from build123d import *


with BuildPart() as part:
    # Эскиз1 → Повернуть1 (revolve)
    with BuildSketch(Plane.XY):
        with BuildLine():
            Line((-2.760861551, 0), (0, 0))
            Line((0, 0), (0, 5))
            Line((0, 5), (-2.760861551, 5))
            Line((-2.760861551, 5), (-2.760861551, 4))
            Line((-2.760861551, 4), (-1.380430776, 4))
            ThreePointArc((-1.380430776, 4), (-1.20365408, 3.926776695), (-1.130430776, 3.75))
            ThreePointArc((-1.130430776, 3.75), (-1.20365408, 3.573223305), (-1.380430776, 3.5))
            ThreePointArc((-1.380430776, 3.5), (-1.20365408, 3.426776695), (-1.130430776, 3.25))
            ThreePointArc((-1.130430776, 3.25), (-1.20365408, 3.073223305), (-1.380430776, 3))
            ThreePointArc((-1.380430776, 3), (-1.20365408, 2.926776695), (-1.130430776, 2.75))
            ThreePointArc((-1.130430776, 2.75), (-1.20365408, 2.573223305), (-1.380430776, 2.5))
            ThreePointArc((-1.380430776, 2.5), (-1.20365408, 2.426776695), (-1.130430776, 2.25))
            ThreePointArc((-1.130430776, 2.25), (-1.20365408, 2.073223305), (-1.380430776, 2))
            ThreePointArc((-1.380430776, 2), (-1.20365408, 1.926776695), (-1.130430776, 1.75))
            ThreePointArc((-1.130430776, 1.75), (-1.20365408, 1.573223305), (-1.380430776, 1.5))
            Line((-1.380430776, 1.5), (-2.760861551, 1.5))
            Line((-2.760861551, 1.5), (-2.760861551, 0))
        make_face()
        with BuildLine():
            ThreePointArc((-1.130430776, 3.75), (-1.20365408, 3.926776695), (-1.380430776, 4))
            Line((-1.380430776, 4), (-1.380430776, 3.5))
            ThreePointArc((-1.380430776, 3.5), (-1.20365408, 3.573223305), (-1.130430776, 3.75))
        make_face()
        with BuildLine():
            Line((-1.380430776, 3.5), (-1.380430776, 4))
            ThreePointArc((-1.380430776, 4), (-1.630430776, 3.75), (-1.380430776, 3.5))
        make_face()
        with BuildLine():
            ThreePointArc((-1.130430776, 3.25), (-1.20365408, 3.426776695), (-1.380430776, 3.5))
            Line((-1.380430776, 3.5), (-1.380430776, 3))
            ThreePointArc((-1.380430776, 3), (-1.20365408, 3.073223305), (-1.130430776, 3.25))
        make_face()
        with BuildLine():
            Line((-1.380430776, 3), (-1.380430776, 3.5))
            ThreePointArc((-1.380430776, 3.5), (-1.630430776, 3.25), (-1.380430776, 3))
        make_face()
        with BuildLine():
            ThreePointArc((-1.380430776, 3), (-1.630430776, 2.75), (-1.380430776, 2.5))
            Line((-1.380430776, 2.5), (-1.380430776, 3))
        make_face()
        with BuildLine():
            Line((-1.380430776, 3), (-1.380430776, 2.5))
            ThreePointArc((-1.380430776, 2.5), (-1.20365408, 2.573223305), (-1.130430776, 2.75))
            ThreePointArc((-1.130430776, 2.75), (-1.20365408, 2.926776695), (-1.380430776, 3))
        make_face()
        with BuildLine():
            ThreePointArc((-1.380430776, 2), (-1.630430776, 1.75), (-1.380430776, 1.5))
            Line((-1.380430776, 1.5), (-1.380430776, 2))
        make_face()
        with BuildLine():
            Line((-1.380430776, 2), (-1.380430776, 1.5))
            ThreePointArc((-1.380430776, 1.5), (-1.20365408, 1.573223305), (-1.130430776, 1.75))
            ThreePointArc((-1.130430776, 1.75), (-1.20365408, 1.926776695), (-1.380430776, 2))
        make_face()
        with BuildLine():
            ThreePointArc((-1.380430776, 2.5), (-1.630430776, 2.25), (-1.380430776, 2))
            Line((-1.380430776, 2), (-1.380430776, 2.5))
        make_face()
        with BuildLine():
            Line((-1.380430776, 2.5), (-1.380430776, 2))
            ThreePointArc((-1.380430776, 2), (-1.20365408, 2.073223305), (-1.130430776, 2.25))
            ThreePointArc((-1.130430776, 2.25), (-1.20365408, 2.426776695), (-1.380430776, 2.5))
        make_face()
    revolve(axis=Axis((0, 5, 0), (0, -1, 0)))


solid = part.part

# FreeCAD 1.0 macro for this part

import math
import FreeCAD as App
import Part
import Sketcher
from FreeCAD import Vector
Q = App.Units.Quantity

doc = App.newDocument("Part")
params = doc.addObject("Spreadsheet::Sheet", "Params")
for row, (alias, value) in enumerate([
    ("sketch1_height", "1 mm"),
    ("sketch1_height2", "5 mm"),
    ("sketch1_radius", "0.25 mm"),
    ("revolution_angle", "360 deg"),
], start=1):
    params.set(f"A{row}", alias)
    params.set(f"B{row}", "=" + value)
    params.setAlias(f"B{row}", alias)

body = doc.addObject("PartDesign::Body", "Body")

sketch1 = body.newObject("Sketcher::SketchObject", "Sketch")
sketch1.AttachmentSupport = (doc.getObject("XY_Plane"), [""])
sketch1.MapMode = "FlatFace"
sketch1.addGeometry(Part.LineSegment(Vector(0, 5, 0), Vector(-2.760862, 5, 0)), False)
sketch1.addGeometry(Part.LineSegment(Vector(-2.760862, 5, 0), Vector(-2.760862, 4, 0)), False)
sketch1.addGeometry(Part.LineSegment(Vector(-2.760862, 4, 0), Vector(-1.380431, 4, 0)), False)
sketch1.addGeometry(Part.ArcOfCircle(Part.Circle(Vector(-1.380431, 3.75, 0), Vector(0, 0, 1), 0.25), math.radians(90), math.radians(270)), False)
sketch1.addGeometry(Part.ArcOfCircle(Part.Circle(Vector(-1.380431, 3.25, 0), Vector(0, 0, 1), 0.25), math.radians(90), math.radians(270)), False)
sketch1.addGeometry(Part.ArcOfCircle(Part.Circle(Vector(-1.380431, 2.75, 0), Vector(0, 0, 1), 0.25), math.radians(90), math.radians(270)), False)
sketch1.addGeometry(Part.ArcOfCircle(Part.Circle(Vector(-1.380431, 2.25, 0), Vector(0, 0, 1), 0.25), math.radians(90), math.radians(270)), False)
sketch1.addGeometry(Part.ArcOfCircle(Part.Circle(Vector(-1.380431, 1.75, 0), Vector(0, 0, 1), 0.25), math.radians(90), math.radians(270)), False)
sketch1.addGeometry(Part.LineSegment(Vector(-1.380431, 1.5, 0), Vector(-2.760862, 1.5, 0)), False)
sketch1.addGeometry(Part.LineSegment(Vector(-2.760862, 1.5, 0), Vector(-2.760862, 0, 0)), False)
sketch1.addGeometry(Part.LineSegment(Vector(-2.760862, 0, 0), Vector(0, 0, 0)), False)
sketch1.addGeometry(Part.LineSegment(Vector(0, 0, 0), Vector(0, 5, 0)), False)
sketch1.addConstraint(Sketcher.Constraint("Coincident", 0, 2, 1, 1))
sketch1.addConstraint(Sketcher.Constraint("Coincident", 1, 2, 2, 1))
sketch1.addConstraint(Sketcher.Constraint("Tangent", 2, 2, 3, 1))
sketch1.addConstraint(Sketcher.Constraint("Tangent", 3, 2, 4, 1))
sketch1.addConstraint(Sketcher.Constraint("Tangent", 4, 2, 5, 1))
sketch1.addConstraint(Sketcher.Constraint("Tangent", 5, 2, 6, 1))
sketch1.addConstraint(Sketcher.Constraint("Tangent", 6, 2, 7, 1))
sketch1.addConstraint(Sketcher.Constraint("Tangent", 7, 2, 8, 1))
sketch1.addConstraint(Sketcher.Constraint("Coincident", 8, 2, 9, 1))
sketch1.addConstraint(Sketcher.Constraint("Coincident", 9, 2, 10, 1))
sketch1.addConstraint(Sketcher.Constraint("Coincident", 10, 2, 11, 1))
sketch1.addConstraint(Sketcher.Constraint("Coincident", 11, 2, 0, 1))
sketch1.addConstraint(Sketcher.Constraint("Horizontal", 0))
sketch1.addConstraint(Sketcher.Constraint("Vertical", 1))
sketch1.addConstraint(Sketcher.Constraint("Horizontal", 2))
sketch1.addConstraint(Sketcher.Constraint("Horizontal", 8))
sketch1.addConstraint(Sketcher.Constraint("Vertical", 9))
sketch1.addConstraint(Sketcher.Constraint("Horizontal", 10))
sketch1.addConstraint(Sketcher.Constraint("Vertical", 11))
sketch1.addConstraint(Sketcher.Constraint("Coincident", 10, 2, -1, 1))
sketch1.addConstraint(Sketcher.Constraint("Equal", 3, 4))
sketch1.addConstraint(Sketcher.Constraint("Equal", 4, 5))
sketch1.addConstraint(Sketcher.Constraint("Equal", 5, 6))
sketch1.addConstraint(Sketcher.Constraint("Equal", 6, 7))
sketch1.addConstraint(Sketcher.Constraint("Vertical", 3, 3, 4, 3))
sketch1.addConstraint(Sketcher.Constraint("Vertical", 4, 3, 5, 3))
sketch1.addConstraint(Sketcher.Constraint("Vertical", 5, 3, 6, 3))
sketch1.addConstraint(Sketcher.Constraint("Vertical", 6, 3, 7, 3))
sketch1.addConstraint(Sketcher.Constraint("Vertical", 1, 2, 8, 2))
sketch1.addConstraint(Sketcher.Constraint("DistanceY", 1, 2, 1, 1, Q("1 mm")))
sketch1.addConstraint(Sketcher.Constraint("DistanceY", 11, 1, 11, 2, Q("5 mm")))
sketch1.addConstraint(Sketcher.Constraint("Radius", 3, Q("0.25 mm")))
sketch1.addConstraint(Sketcher.Constraint("DistanceX", 0, 2, 0, 1, Q("2.760862 mm")))
sketch1.addConstraint(Sketcher.Constraint("DistanceX", 2, 1, 2, 2, Q("1.380431 mm")))
sketch1.setExpression("Constraints[29]", "Params.sketch1_height")
sketch1.setExpression("Constraints[30]", "Params.sketch1_height2")
sketch1.setExpression("Constraints[31]", "Params.sketch1_radius")
revolution = body.newObject("PartDesign::Revolution", "Revolution")
revolution.Profile = sketch1
revolution.ReferenceAxis = (sketch1, ["V_Axis"])
revolution.setExpression("Angle", "Params.revolution_angle")

doc.recompute()
